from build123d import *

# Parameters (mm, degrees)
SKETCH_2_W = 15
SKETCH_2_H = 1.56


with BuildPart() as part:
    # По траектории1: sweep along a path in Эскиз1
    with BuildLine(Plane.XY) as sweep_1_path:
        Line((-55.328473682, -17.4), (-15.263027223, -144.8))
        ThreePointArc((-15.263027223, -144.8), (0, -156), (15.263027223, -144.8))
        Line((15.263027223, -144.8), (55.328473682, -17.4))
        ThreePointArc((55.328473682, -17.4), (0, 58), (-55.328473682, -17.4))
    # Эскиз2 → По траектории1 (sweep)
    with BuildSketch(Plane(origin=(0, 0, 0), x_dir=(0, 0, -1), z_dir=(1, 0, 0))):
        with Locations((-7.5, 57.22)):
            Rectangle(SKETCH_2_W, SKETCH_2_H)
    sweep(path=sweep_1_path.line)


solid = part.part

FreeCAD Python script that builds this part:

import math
import FreeCAD as App
import Part
import Sketcher
Q = App.Units.Quantity


def add_polygon(sketch, points):
    """Adds a closed chain of lines whose ends are joined by coincident constraints."""
    first, n = sketch.GeometryCount, len(points)
    for a, b in zip(points, points[1:] + points[:1]):
        sketch.addGeometry(Part.LineSegment(App.Vector(*a, 0), App.Vector(*b, 0)), False)
    for i in range(n):
        sketch.addConstraint(Sketcher.Constraint("Coincident", first + i, 2, first + (i + 1) % n, 1))

doc = App.newDocument("Part")
body = doc.addObject("PartDesign::Body", "Body")

# Sketch on YZ plane
sketch1 = body.newObject("Sketcher::SketchObject", "Sketch")
sketch1.AttachmentSupport = (doc.getObject("YZ_Plane"), [""])
sketch1.MapMode = "FlatFace"
add_polygon(sketch1, [(58, 15), (56.4, 15), (56.4, 0), (58, 0)])  # lines 0-3
sketch1.addConstraint(Sketcher.Constraint("Horizontal", 0))
sketch1.addConstraint(Sketcher.Constraint("Vertical", 1))
sketch1.addConstraint(Sketcher.Constraint("Horizontal", 2))
sketch1.addConstraint(Sketcher.Constraint("Vertical", 3))
sketch1.addConstraint(Sketcher.Constraint("PointOnObject", 1, 2, -1))
sketch1.addConstraint(Sketcher.Constraint("DistanceY", 1, 2, 1, 1, Q("15 mm")))
sketch1.addConstraint(Sketcher.Constraint("DistanceX", -1, 1, 2, 2, Q("58 mm")))
sketch1.addConstraint(Sketcher.Constraint("DistanceX", 0, 2, 0, 1, Q("1.56 mm")))

# Sketch on XY plane
sketch2 = body.newObject("Sketcher::SketchObject", "Sketch001")
sketch2.AttachmentSupport = (doc.getObject("XY_Plane"), [""])
sketch2.MapMode = "FlatFace"
sketch2.addGeometry(Part.LineSegment(App.Vector(-55, -17, 0), App.Vector(-15, -145, 0)), False)
sketch2.addGeometry(Part.ArcOfCircle(Part.Circle(App.Vector(0, -140, 0), App.Vector(0, 0, 1), 16), math.radians(-163), math.radians(-17)), False)
sketch2.addGeometry(Part.LineSegment(App.Vector(15, -145, 0), App.Vector(55, -17, 0)), False)
sketch2.addGeometry(Part.ArcOfCircle(Part.Circle(App.Vector(0, 0, 0), App.Vector(0, 0, 1), 58), math.radians(-17), math.radians(197)), False)
sketch2.addConstraint(Sketcher.Constraint("Tangent", 0, 2, 1, 1))
sketch2.addConstraint(Sketcher.Constraint("Tangent", 1, 2, 2, 1))
sketch2.addConstraint(Sketcher.Constraint("Tangent", 2, 2, 3, 1))
sketch2.addConstraint(Sketcher.Constraint("Tangent", 3, 2, 0, 1))
sketch2.addConstraint(Sketcher.Constraint("Coincident", 3, 3, -1, 1))
sketch2.addConstraint(Sketcher.Constraint("PointOnObject", 1, 3, -2))
sketch2.addConstraint(Sketcher.Constraint("Radius", 1, Q("16 mm")))
sketch2.addConstraint(Sketcher.Constraint("Radius", 3, Q("58 mm")))
sketch2.addConstraint(Sketcher.Constraint("DistanceY", 1, 3, -1, 1, Q("140 mm")))
doc.recompute()

additivepipe = body.newObject("PartDesign::AdditivePipe", "AdditivePipe")
additivepipe.Profile = sketch1
additivepipe.Spine = (sketch2, ["Edge1", "Edge2", "Edge3", "Edge4"])

doc.recompute()
